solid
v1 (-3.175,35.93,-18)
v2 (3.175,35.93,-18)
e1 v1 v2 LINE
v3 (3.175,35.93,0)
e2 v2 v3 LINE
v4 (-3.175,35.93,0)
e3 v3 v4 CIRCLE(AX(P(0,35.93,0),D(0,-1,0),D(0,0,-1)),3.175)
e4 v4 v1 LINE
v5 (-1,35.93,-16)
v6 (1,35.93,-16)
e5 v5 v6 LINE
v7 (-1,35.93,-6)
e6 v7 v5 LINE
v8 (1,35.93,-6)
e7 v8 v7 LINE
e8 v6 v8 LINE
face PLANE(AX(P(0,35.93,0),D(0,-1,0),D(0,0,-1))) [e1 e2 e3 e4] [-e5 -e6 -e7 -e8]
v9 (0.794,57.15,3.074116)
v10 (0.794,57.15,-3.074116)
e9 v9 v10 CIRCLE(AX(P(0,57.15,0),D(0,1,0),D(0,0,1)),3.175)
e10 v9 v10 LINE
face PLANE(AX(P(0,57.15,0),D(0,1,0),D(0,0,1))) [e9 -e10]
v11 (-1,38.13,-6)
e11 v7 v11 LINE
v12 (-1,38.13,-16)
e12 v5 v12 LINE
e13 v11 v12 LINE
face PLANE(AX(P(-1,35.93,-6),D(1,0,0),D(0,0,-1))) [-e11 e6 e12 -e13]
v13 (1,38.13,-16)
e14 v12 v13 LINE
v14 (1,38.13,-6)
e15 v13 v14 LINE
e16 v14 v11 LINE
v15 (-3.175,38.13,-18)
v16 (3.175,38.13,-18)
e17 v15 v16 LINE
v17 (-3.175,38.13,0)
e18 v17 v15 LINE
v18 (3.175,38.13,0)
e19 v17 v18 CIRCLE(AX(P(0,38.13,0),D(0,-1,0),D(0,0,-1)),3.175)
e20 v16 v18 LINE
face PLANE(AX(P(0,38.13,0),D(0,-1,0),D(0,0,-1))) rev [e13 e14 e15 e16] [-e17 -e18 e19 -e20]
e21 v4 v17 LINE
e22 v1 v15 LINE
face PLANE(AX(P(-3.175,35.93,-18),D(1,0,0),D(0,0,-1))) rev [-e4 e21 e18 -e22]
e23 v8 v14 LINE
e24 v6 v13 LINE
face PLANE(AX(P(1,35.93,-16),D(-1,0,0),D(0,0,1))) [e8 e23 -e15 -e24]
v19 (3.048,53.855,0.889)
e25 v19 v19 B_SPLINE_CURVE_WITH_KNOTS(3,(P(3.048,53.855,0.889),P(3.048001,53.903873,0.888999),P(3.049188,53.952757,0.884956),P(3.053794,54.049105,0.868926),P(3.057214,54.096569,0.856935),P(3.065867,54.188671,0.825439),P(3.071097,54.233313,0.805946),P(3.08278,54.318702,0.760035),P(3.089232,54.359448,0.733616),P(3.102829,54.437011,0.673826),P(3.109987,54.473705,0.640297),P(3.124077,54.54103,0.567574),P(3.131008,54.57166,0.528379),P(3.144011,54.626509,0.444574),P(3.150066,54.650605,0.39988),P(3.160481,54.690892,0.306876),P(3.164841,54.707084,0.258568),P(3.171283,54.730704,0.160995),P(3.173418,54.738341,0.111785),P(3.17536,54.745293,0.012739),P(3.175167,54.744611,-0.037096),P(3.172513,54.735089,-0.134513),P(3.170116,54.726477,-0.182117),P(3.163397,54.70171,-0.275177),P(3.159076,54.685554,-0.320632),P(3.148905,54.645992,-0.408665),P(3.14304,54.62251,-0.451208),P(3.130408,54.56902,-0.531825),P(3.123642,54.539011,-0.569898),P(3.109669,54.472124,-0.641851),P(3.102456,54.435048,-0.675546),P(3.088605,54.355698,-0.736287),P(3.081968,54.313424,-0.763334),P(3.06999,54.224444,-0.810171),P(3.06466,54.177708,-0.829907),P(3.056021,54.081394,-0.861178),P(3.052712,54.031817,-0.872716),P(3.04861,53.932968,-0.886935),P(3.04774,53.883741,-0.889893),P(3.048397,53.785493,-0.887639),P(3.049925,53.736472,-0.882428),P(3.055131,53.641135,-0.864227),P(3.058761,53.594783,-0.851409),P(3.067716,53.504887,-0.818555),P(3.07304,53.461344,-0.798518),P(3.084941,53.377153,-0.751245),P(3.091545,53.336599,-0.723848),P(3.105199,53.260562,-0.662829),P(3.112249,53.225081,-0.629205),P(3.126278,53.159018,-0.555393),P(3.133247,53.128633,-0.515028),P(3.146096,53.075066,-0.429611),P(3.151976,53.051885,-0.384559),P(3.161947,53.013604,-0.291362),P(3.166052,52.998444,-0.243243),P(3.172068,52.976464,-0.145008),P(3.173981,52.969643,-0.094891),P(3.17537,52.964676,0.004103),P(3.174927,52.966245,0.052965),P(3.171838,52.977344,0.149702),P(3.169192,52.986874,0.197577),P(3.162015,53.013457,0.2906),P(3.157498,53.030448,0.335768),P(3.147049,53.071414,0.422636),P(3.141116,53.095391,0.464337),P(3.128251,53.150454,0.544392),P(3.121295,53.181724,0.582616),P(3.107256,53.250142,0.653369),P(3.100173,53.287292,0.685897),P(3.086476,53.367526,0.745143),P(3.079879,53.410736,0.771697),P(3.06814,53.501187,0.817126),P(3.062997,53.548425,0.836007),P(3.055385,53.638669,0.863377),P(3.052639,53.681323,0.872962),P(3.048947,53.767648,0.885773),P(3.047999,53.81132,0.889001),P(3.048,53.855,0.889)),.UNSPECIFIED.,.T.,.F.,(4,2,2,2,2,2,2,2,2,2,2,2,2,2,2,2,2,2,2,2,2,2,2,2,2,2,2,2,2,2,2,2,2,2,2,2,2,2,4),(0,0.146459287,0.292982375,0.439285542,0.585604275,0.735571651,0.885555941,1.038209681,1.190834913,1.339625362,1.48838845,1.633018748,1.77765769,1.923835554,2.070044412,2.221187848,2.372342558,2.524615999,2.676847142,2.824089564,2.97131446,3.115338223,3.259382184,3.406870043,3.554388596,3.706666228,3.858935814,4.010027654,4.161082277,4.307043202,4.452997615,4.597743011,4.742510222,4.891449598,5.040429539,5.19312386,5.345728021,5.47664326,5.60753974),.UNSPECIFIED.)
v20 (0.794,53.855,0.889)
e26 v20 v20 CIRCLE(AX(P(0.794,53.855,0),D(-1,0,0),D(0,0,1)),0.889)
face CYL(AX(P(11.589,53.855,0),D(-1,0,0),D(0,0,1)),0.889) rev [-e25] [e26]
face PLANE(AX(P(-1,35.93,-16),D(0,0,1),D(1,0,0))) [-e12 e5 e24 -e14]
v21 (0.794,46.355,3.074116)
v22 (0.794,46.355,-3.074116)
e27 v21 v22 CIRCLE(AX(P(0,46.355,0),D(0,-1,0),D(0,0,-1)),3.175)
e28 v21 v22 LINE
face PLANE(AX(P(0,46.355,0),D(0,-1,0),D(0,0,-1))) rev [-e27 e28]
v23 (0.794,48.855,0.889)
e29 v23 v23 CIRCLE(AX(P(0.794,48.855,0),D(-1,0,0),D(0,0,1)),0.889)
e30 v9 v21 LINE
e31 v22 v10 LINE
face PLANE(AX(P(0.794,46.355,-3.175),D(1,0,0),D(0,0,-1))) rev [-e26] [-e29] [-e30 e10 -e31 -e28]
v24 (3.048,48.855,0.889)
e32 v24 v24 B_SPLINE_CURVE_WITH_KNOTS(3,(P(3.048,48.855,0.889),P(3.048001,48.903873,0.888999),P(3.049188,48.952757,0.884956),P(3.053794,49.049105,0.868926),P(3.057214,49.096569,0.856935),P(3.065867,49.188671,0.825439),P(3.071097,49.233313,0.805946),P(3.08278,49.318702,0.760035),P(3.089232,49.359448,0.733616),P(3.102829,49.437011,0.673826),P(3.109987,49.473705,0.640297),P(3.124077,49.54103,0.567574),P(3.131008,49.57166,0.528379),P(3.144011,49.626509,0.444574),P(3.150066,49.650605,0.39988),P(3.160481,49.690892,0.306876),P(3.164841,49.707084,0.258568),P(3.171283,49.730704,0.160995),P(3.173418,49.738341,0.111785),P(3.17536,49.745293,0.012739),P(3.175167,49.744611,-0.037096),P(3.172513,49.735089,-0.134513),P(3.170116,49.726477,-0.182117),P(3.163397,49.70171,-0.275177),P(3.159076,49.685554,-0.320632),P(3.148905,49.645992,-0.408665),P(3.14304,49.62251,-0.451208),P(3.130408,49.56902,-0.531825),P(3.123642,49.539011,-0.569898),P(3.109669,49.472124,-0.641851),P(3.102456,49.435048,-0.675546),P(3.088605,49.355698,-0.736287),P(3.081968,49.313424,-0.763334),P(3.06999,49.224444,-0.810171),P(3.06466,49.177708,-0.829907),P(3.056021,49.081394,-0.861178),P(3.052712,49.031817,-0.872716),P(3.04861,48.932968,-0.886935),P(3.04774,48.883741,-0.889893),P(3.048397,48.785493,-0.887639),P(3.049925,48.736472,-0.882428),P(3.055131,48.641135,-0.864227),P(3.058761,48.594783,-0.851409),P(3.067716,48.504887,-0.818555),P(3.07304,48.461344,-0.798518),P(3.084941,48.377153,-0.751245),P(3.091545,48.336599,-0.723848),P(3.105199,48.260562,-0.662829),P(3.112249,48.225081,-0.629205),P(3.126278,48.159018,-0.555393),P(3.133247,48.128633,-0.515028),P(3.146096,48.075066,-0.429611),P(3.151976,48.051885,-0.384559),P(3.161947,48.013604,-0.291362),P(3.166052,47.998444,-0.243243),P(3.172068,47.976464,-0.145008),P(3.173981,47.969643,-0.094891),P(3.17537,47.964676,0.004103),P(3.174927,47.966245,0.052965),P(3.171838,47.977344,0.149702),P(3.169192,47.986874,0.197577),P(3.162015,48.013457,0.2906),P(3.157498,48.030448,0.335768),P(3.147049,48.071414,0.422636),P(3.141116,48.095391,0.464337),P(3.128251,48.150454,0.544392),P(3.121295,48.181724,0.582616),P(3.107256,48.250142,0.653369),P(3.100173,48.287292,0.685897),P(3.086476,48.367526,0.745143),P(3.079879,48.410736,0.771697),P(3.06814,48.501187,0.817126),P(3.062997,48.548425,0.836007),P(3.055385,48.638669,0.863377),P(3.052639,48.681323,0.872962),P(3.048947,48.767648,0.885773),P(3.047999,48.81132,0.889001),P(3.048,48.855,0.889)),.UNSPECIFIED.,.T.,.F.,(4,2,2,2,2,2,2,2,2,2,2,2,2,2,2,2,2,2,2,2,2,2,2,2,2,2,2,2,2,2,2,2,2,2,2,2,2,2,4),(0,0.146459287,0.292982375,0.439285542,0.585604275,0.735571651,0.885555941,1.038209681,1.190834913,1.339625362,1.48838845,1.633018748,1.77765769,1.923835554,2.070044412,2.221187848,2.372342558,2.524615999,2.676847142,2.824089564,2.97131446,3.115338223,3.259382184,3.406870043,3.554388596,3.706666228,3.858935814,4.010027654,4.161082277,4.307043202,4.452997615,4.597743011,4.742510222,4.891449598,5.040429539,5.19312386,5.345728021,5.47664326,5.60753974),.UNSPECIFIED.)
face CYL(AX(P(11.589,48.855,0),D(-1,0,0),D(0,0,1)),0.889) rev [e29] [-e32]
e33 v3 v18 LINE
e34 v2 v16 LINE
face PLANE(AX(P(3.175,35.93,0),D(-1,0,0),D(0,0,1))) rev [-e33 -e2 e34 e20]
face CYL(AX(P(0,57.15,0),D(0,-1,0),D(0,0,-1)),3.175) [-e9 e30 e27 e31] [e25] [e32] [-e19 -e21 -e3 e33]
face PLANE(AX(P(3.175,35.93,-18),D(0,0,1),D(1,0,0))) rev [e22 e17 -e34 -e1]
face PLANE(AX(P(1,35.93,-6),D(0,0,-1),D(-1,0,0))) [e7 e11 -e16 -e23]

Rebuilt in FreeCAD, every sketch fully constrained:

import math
import FreeCAD as App
import Part
import Sketcher
Q = App.Units.Quantity


def add_polygon(sketch, points):
    """Adds a closed chain of lines whose ends are joined by coincident constraints."""
    first, n = sketch.GeometryCount, len(points)
    for a, b in zip(points, points[1:] + points[:1]):
        sketch.addGeometry(Part.LineSegment(App.Vector(*a, 0), App.Vector(*b, 0)), False)
    for i in range(n):
        sketch.addConstraint(Sketcher.Constraint("Coincident", first + i, 2, first + (i + 1) % n, 1))

doc = App.newDocument("Part")
params = doc.addObject("Spreadsheet::Sheet", "Params")
for row, (alias, value) in enumerate([
    ("sketch1_diameter", "6.35 mm"),
    ("pad1_length", "57.15 mm"),
    ("sketch2_height", "6.35 mm"),
    ("pocket1_length", "10.795 mm"),
    ("pocket2_length", "10.795 mm"),
    ("sketch4_diameter", "6.35 mm"),
    ("pocket3_length", "37.03 mm"),
    ("sketch5_width", "2 mm"),
    ("sketch5_height", "18 mm"),
    ("sketch5_height2", "10 mm"),
    ("pad2_length", "2.2 mm"),
], start=1):
    params.set(f"A{row}", alias)
    params.set(f"B{row}", "=" + value)
    params.setAlias(f"B{row}", alias)

body = doc.addObject("PartDesign::Body", "Body")

# Sketch on XZ plane
sketch1 = doc.addObject("Sketcher::SketchObject", "Sketch")
body.addObject(sketch1)
sketch1.AttachmentSupport = (doc.XZ_Plane, [""])
sketch1.MapMode = "FlatFace"
sketch1.addGeometry(Part.Circle(App.Vector(0, 0, 0), App.Vector(0, 0, 1), 3.175), False)
sketch1.addConstraint(Sketcher.Constraint("Coincident", 0, 3, -1, 1))
sketch1.addConstraint(Sketcher.Constraint("Diameter", 0, Q("6.35 mm")))
sketch1.setExpression("Constraints[1]", "Params.sketch1_diameter")
pad1 = doc.addObject("PartDesign::Pad", "Pad")
body.addObject(pad1)
pad1.Profile = sketch1
pad1.setExpression("Length", "Params.pad1_length")
pad1.Reversed = True

# Sketch on XZ plane
sketch2 = doc.addObject("Sketcher::SketchObject", "Sketch001")
body.addObject(sketch2)
sketch2.AttachmentSupport = (doc.XZ_Plane, [""])
sketch2.MapMode = "FlatFace"
sketch2.AttachmentOffset = App.Placement(App.Vector(0, 0, -57.15), App.Rotation())
add_polygon(sketch2, [(0.794, -3.175), (-3.175, -3.175), (-3.175, 3.175), (0.794, 3.175)])  # lines 0-3
sketch2.addConstraint(Sketcher.Constraint("Horizontal", 0))
sketch2.addConstraint(Sketcher.Constraint("Vertical", 1))
sketch2.addConstraint(Sketcher.Constraint("Horizontal", 2))
sketch2.addConstraint(Sketcher.Constraint("Vertical", 3))
sketch2.addConstraint(Sketcher.Constraint("DistanceY", 1, 1, 1, 2, Q("6.35 mm")))
sketch2.addConstraint(Sketcher.Constraint("DistanceX", 0, 2, 0, 1, Q("3.969 mm")))
sketch2.addConstraint(Sketcher.Constraint("DistanceX", 0, 2, -1, 1, Q("3.175 mm")))
sketch2.addConstraint(Sketcher.Constraint("DistanceY", 0, 2, -1, 1, Q("3.175 mm")))
sketch2.setExpression("Constraints[8]", "Params.sketch2_height")
pocket1 = doc.addObject("PartDesign::Pocket", "Pocket")
body.addObject(pocket1)
pocket1.Profile = sketch2
pocket1.setExpression("Length", "Params.pocket1_length")
pocket1.Reversed = True

# Sketch on YZ plane
sketch3 = doc.addObject("Sketcher::SketchObject", "Sketch002")
body.addObject(sketch3)
sketch3.AttachmentSupport = (doc.YZ_Plane, [""])
sketch3.MapMode = "FlatFace"
sketch3.AttachmentOffset = App.Placement(App.Vector(0, 0, 0.794), App.Rotation())
sketch3.addGeometry(Part.Circle(App.Vector(53.855, 0, 0), App.Vector(0, 0, 1), 0.889), False)
sketch3.addGeometry(Part.Circle(App.Vector(48.855, 0, 0), App.Vector(0, 0, 1), 0.889), False)
sketch3.addConstraint(Sketcher.Constraint("Equal", 0, 1))
sketch3.addConstraint(Sketcher.Constraint("PointOnObject", 0, 3, -1))
sketch3.addConstraint(Sketcher.Constraint("PointOnObject", 1, 3, -1))
sketch3.addConstraint(Sketcher.Constraint("Diameter", 0, Q("1.778 mm")))
sketch3.addConstraint(Sketcher.Constraint("DistanceX", 1, 3, 0, 3, Q("5 mm")))
sketch3.addConstraint(Sketcher.Constraint("DistanceX", -1, 1, 0, 3, Q("53.855 mm")))
pocket2 = doc.addObject("PartDesign::Pocket", "Pocket001")
body.addObject(pocket2)
pocket2.Profile = sketch3
pocket2.setExpression("Length", "Params.pocket2_length")
pocket2.Reversed = True

# Sketch on XZ plane
sketch4 = doc.addObject("Sketcher::SketchObject", "Sketch003")
body.addObject(sketch4)
sketch4.AttachmentSupport = (doc.XZ_Plane, [""])
sketch4.MapMode = "FlatFace"
sketch4.addGeometry(Part.Circle(App.Vector(0, 0, 0), App.Vector(0, 0, 1), 3.175), False)
sketch4.addConstraint(Sketcher.Constraint("Coincident", 0, 3, -1, 1))
sketch4.addConstraint(Sketcher.Constraint("Diameter", 0, Q("6.35 mm")))
sketch4.setExpression("Constraints[1]", "Params.sketch4_diameter")
pocket3 = doc.addObject("PartDesign::Pocket", "Pocket002")
body.addObject(pocket3)
pocket3.Profile = sketch4
pocket3.setExpression("Length", "Params.pocket3_length")

# Sketch on XZ plane
sketch5 = doc.addObject("Sketcher::SketchObject", "Sketch004")
body.addObject(sketch5)
sketch5.AttachmentSupport = (doc.XZ_Plane, [""])
sketch5.MapMode = "FlatFace"
sketch5.AttachmentOffset = App.Placement(App.Vector(0, 0, -37.03), App.Rotation())
sketch5.addGeometry(Part.LineSegment(App.Vector(3.175, -18, 0), App.Vector(3.175, 0, 0)), False)  # 0
sketch5.addGeometry(Part.ArcOfCircle(Part.Circle(App.Vector(0, 0, 0), App.Vector(0, 0, 1), 3.175), math.radians(0), math.radians(180)), False)  # 1
sketch5.addGeometry(Part.LineSegment(App.Vector(-3.175, 0, 0), App.Vector(-3.175, -18, 0)), False)  # 2
sketch5.addGeometry(Part.LineSegment(App.Vector(-3.175, -18, 0), App.Vector(3.175, -18, 0)), False)  # 3
add_polygon(sketch5, [(-1, -16), (-1, -6), (1, -6), (1, -16)])  # lines 4-7
sketch5.addConstraint(Sketcher.Constraint("Tangent", 0, 2, 1, 1))
sketch5.addConstraint(Sketcher.Constraint("Tangent", 1, 2, 2, 1))
sketch5.addConstraint(Sketcher.Constraint("Coincident", 2, 2, 3, 1))
sketch5.addConstraint(Sketcher.Constraint("Coincident", 3, 2, 0, 1))
sketch5.addConstraint(Sketcher.Constraint("Vertical", 0))
sketch5.addConstraint(Sketcher.Constraint("Vertical", 2))
sketch5.addConstraint(Sketcher.Constraint("Horizontal", 3))
sketch5.addConstraint(Sketcher.Constraint("Vertical", 4))
sketch5.addConstraint(Sketcher.Constraint("Horizontal", 5))
sketch5.addConstraint(Sketcher.Constraint("Vertical", 6))
sketch5.addConstraint(Sketcher.Constraint("Horizontal", 7))
sketch5.addConstraint(Sketcher.Constraint("Coincident", 1, 3, -1, 1))
sketch5.addConstraint(Sketcher.Constraint("DistanceX", 5, 1, 5, 2, Q("2 mm")))
sketch5.addConstraint(Sketcher.Constraint("DistanceY", 0, 1, 0, 2, Q("18 mm")))
sketch5.addConstraint(Sketcher.Constraint("DistanceY", 4, 1, 4, 2, Q("10 mm")))
sketch5.addConstraint(Sketcher.Constraint("DistanceX", 4, 2, -1, 1, Q("1 mm")))
sketch5.addConstraint(Sketcher.Constraint("DistanceY", 4, 2, -1, 1, Q("6 mm")))
sketch5.addConstraint(Sketcher.Constraint("Radius", 1, Q("3.175 mm")))
sketch5.setExpression("Constraints[16]", "Params.sketch5_width")
sketch5.setExpression("Constraints[17]", "Params.sketch5_height")
sketch5.setExpression("Constraints[18]", "Params.sketch5_height2")
pad2 = doc.addObject("PartDesign::Pad", "Pad001")
body.addObject(pad2)
pad2.Profile = sketch5
pad2.setExpression("Length", "Params.pad2_length")
pad2.Midplane = True

doc.recompute()
